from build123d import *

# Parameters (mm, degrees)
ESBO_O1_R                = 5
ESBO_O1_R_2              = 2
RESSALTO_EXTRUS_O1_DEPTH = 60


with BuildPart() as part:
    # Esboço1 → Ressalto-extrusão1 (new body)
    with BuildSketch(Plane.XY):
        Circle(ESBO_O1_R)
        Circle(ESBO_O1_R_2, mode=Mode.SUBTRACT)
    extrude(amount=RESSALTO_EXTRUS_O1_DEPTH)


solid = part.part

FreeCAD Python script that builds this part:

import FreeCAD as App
import Part
import Sketcher

V = App.Vector

doc = App.newDocument("Part")
body = doc.addObject("PartDesign::Body", "Body")

# Sketch on XY plane
sketch1 = doc.addObject("Sketcher::SketchObject", "Sketch")
body.addObject(sketch1)
sketch1.AttachmentSupport = (doc.XY_Plane, [""])
sketch1.MapMode = "FlatFace"
sketch1.addGeometry([
    Part.Circle(V(0, 0, 0), V(0, 0, 1), 5),
    Part.Circle(V(0, 0, 0), V(0, 0, 1), 2),
], False)
sketch1.addConstraint([
    Sketcher.Constraint("Coincident", 0, 3, -1, 1),
    Sketcher.Constraint("Coincident", 1, 3, -1, 1),
    Sketcher.Constraint("Diameter", 0, 10.0),
    Sketcher.Constraint("Diameter", 1, 4.0),
])
pad1 = doc.addObject("PartDesign::Pad", "Pad")
body.addObject(pad1)
pad1.Profile = sketch1
pad1.Length = 60

doc.recompute()
